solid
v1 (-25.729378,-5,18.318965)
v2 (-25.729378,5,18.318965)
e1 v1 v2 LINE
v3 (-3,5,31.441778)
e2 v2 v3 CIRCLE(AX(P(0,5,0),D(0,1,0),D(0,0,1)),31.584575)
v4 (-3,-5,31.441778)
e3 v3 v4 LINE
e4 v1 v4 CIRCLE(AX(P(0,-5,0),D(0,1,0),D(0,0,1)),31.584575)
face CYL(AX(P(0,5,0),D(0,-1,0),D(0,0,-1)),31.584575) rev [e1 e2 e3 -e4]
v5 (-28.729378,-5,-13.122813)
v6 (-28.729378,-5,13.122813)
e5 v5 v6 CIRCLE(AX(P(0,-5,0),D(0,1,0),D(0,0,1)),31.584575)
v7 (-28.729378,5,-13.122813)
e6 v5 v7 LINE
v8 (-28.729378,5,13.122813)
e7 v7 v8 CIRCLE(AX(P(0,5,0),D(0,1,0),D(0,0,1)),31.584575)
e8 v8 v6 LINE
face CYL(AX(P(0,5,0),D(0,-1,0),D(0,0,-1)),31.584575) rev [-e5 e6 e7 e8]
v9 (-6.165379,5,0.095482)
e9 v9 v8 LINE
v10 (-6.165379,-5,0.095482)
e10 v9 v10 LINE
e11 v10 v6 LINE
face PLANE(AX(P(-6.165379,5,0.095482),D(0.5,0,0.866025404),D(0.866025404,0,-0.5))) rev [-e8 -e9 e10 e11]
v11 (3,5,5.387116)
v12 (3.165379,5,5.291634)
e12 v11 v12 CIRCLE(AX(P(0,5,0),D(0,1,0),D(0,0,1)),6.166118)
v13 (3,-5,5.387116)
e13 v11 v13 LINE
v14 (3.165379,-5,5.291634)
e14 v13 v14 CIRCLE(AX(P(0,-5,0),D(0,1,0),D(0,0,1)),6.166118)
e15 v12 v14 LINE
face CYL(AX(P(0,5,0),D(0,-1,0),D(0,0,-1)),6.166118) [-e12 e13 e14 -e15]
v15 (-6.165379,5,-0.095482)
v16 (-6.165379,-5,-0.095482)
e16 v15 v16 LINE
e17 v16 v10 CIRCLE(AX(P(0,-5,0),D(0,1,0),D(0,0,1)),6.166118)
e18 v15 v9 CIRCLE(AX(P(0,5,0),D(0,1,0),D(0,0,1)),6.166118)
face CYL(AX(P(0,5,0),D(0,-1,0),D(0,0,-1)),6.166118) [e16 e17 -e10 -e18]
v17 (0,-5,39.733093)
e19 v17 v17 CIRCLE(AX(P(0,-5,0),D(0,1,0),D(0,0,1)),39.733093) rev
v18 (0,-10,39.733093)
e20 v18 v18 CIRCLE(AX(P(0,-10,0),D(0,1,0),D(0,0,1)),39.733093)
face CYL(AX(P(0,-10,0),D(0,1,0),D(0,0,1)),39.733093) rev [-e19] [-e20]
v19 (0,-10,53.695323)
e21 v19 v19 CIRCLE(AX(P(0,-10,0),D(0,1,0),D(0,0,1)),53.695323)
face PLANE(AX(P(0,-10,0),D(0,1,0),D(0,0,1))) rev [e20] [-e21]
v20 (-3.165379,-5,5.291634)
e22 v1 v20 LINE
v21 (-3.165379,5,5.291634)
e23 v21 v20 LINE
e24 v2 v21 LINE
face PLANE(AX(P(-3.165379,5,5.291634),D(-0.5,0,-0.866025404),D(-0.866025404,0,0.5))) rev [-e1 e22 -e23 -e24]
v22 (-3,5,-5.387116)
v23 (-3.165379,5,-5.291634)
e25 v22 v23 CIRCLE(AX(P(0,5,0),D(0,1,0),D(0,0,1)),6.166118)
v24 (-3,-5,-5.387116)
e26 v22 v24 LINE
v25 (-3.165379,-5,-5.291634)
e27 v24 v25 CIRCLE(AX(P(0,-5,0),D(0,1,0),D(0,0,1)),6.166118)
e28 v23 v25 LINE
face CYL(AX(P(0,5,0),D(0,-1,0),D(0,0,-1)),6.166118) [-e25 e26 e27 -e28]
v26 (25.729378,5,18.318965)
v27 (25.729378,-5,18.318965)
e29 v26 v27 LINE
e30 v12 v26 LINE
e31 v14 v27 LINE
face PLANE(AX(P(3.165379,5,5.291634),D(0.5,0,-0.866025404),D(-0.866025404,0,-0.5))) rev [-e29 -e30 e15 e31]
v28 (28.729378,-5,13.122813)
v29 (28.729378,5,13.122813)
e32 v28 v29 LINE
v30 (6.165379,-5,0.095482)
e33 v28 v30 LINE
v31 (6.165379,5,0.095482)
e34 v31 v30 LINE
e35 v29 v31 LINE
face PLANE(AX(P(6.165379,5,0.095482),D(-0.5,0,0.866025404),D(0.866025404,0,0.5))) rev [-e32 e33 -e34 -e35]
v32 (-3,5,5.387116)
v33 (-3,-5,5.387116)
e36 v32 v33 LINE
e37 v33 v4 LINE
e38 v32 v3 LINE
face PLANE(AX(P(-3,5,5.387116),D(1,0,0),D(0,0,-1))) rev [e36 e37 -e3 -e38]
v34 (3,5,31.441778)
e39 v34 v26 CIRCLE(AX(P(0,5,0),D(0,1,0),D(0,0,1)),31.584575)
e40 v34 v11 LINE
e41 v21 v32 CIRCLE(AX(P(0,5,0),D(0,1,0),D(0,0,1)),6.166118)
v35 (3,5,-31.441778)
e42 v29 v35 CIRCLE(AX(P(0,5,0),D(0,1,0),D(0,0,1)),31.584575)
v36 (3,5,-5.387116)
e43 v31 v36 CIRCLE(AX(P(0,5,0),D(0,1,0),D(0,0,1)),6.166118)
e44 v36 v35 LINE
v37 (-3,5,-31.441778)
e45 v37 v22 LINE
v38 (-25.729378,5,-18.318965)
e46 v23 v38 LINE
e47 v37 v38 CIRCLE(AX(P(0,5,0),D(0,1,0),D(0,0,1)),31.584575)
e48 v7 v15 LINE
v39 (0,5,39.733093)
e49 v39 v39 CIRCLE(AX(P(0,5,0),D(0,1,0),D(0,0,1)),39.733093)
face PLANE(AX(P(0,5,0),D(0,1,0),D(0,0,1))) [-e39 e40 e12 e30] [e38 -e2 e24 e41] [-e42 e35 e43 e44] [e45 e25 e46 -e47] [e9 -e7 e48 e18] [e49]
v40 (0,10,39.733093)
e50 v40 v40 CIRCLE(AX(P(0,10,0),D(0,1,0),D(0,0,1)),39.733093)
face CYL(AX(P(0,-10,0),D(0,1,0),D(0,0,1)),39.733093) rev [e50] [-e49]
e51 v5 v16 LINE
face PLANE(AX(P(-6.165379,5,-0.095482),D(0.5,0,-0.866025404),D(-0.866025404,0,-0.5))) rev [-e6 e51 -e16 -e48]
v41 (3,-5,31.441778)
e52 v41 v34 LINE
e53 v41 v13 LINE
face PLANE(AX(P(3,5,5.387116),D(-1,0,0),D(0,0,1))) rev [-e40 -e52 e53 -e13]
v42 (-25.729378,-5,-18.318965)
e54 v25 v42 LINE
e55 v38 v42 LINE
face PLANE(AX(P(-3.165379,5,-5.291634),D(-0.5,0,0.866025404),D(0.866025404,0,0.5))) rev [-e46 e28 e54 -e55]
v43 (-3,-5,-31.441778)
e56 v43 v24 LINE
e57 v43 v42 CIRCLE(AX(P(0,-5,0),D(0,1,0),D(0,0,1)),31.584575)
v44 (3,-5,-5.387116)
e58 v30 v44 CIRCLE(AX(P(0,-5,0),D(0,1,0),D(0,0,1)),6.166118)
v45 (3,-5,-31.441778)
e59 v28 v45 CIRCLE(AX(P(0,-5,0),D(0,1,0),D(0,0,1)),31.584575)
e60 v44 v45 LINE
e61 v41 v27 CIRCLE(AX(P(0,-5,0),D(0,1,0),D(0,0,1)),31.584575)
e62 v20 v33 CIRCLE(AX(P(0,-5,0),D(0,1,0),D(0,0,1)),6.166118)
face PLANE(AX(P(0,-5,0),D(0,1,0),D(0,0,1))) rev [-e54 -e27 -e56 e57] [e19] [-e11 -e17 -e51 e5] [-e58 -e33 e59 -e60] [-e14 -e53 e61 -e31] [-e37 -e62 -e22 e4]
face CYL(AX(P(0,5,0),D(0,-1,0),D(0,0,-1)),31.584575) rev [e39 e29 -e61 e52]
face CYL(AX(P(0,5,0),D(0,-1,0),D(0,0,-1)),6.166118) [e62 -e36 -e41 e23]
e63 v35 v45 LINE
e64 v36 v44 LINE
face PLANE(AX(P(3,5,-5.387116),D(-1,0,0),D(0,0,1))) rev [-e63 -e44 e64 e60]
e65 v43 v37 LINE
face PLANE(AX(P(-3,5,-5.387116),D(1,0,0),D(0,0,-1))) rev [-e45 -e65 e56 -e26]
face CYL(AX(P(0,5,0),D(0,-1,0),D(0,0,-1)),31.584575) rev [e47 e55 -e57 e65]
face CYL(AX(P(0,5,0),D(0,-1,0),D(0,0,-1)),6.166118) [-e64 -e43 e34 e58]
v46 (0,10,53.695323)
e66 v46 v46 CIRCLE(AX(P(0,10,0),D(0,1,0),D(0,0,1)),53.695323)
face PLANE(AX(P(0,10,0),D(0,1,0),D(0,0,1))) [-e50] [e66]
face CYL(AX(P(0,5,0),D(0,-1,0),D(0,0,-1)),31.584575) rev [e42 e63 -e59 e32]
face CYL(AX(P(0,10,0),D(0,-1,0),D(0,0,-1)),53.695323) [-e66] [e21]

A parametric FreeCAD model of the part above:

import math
import FreeCAD as App
import Part
import Sketcher

V = App.Vector

doc = App.newDocument("Part")
body = doc.addObject("PartDesign::Body", "Body")

# Sketch on XZ plane
sketch1 = body.newObject("Sketcher::SketchObject", "Sketch")
sketch1.AttachmentSupport = (doc.getObject("XZ_Plane"), [""])
sketch1.MapMode = "FlatFace"
sketch1.addGeometry(Part.Circle(V(0, 0, 0), V(0, 0, 1), 54), False)
sketch1.addConstraint(Sketcher.Constraint("Coincident", 0, 3, -1, 1))
sketch1.addConstraint(Sketcher.Constraint("Diameter", 0, 107.390646))
pad1 = body.newObject("PartDesign::Pad", "Pad")
pad1.Profile = sketch1
pad1.Length = 20
pad1.Midplane = True

# Sketch on XZ plane
sketch2 = body.newObject("Sketcher::SketchObject", "Sketch001")
sketch2.AttachmentSupport = (doc.getObject("XZ_Plane"), [""])
sketch2.MapMode = "FlatFace"
sketch2.addGeometry(Part.Circle(V(0, 0, 0), V(0, 0, 1), 40), False)
sketch2.addConstraint(Sketcher.Constraint("Coincident", 0, 3, -1, 1))
sketch2.addConstraint(Sketcher.Constraint("Diameter", 0, 79.466187))
pocket1 = body.newObject("PartDesign::Pocket", "Pocket")
pocket1.Profile = sketch2
pocket1.Length = 20
pocket1.Midplane = True

# Sketch on XZ plane
sketch3 = body.newObject("Sketcher::SketchObject", "Sketch002")
sketch3.AttachmentSupport = (doc.getObject("XZ_Plane"), [""])
sketch3.MapMode = "FlatFace"
sketch3.addGeometry(Part.Circle(V(0, 0, 0), V(0, 0, 1), 40), False)
sketch3.addGeometry(Part.Circle(V(0, 0, 0), V(0, 0, 1), 32), False)
sketch3.addConstraint(Sketcher.Constraint("Coincident", 0, 3, -1, 1))
sketch3.addConstraint(Sketcher.Constraint("Coincident", 1, 3, -1, 1))
sketch3.addConstraint(Sketcher.Constraint("Diameter", 1, 63.169151))
sketch3.addConstraint(Sketcher.Constraint("Diameter", 0, 79.466187))
pad2 = body.newObject("PartDesign::Pad", "Pad001")
pad2.Profile = sketch3
pad2.Length = 10
pad2.Midplane = True

# Sketch on XZ plane
sketch4 = body.newObject("Sketcher::SketchObject", "Sketch003")
sketch4.AttachmentSupport = (doc.getObject("XZ_Plane"), [""])
sketch4.MapMode = "FlatFace"
sketch4.addGeometry(Part.LineSegment(V(3, -5, 0), V(3, -40, 0)), False)
sketch4.addGeometry(Part.LineSegment(V(3, -40, 0), V(-3, -40, 0)), False)
sketch4.addGeometry(Part.LineSegment(V(-3, -40, 0), V(-3, -5, 0)), False)
sketch4.addGeometry(Part.ArcOfCircle(Part.Circle(V(0, 0, 0), V(0, 0, 1), 6), math.radians(-61), math.radians(241)), False)
sketch4.addConstraint(Sketcher.Constraint("Coincident", 0, 2, 1, 1))
sketch4.addConstraint(Sketcher.Constraint("Coincident", 1, 2, 2, 1))
sketch4.addConstraint(Sketcher.Constraint("Coincident", 2, 2, 3, 2))
sketch4.addConstraint(Sketcher.Constraint("Coincident", 3, 1, 0, 1))
sketch4.addConstraint(Sketcher.Constraint("Vertical", 0))
sketch4.addConstraint(Sketcher.Constraint("Horizontal", 1))
sketch4.addConstraint(Sketcher.Constraint("Vertical", 2))
sketch4.addConstraint(Sketcher.Constraint("Coincident", 3, 3, -1, 1))
sketch4.addConstraint(Sketcher.Constraint("Horizontal", 2, 2, 3, 1))
sketch4.addConstraint(Sketcher.Constraint("DistanceX", 1, 2, 1, 1, 6.0))
sketch4.addConstraint(Sketcher.Constraint("Radius", 3, 6.166118))
sketch4.addConstraint(Sketcher.Constraint("DistanceY", 0, 2, 0, 1, 34.23256))
pad3 = body.newObject("PartDesign::Pad", "Pad002")
pad3.Profile = sketch4
pad3.Length = 10
pad3.Midplane = True
doc.recompute()

polarpattern = body.newObject("PartDesign::PolarPattern", "PolarPattern")
polarpattern.Originals = [pad3]
polarpattern.Axis = (doc.getObject("Y_Axis"), [""])
polarpattern.Angle = 240
polarpattern.Occurrences = 5
body.Tip = polarpattern

doc.recompute()
